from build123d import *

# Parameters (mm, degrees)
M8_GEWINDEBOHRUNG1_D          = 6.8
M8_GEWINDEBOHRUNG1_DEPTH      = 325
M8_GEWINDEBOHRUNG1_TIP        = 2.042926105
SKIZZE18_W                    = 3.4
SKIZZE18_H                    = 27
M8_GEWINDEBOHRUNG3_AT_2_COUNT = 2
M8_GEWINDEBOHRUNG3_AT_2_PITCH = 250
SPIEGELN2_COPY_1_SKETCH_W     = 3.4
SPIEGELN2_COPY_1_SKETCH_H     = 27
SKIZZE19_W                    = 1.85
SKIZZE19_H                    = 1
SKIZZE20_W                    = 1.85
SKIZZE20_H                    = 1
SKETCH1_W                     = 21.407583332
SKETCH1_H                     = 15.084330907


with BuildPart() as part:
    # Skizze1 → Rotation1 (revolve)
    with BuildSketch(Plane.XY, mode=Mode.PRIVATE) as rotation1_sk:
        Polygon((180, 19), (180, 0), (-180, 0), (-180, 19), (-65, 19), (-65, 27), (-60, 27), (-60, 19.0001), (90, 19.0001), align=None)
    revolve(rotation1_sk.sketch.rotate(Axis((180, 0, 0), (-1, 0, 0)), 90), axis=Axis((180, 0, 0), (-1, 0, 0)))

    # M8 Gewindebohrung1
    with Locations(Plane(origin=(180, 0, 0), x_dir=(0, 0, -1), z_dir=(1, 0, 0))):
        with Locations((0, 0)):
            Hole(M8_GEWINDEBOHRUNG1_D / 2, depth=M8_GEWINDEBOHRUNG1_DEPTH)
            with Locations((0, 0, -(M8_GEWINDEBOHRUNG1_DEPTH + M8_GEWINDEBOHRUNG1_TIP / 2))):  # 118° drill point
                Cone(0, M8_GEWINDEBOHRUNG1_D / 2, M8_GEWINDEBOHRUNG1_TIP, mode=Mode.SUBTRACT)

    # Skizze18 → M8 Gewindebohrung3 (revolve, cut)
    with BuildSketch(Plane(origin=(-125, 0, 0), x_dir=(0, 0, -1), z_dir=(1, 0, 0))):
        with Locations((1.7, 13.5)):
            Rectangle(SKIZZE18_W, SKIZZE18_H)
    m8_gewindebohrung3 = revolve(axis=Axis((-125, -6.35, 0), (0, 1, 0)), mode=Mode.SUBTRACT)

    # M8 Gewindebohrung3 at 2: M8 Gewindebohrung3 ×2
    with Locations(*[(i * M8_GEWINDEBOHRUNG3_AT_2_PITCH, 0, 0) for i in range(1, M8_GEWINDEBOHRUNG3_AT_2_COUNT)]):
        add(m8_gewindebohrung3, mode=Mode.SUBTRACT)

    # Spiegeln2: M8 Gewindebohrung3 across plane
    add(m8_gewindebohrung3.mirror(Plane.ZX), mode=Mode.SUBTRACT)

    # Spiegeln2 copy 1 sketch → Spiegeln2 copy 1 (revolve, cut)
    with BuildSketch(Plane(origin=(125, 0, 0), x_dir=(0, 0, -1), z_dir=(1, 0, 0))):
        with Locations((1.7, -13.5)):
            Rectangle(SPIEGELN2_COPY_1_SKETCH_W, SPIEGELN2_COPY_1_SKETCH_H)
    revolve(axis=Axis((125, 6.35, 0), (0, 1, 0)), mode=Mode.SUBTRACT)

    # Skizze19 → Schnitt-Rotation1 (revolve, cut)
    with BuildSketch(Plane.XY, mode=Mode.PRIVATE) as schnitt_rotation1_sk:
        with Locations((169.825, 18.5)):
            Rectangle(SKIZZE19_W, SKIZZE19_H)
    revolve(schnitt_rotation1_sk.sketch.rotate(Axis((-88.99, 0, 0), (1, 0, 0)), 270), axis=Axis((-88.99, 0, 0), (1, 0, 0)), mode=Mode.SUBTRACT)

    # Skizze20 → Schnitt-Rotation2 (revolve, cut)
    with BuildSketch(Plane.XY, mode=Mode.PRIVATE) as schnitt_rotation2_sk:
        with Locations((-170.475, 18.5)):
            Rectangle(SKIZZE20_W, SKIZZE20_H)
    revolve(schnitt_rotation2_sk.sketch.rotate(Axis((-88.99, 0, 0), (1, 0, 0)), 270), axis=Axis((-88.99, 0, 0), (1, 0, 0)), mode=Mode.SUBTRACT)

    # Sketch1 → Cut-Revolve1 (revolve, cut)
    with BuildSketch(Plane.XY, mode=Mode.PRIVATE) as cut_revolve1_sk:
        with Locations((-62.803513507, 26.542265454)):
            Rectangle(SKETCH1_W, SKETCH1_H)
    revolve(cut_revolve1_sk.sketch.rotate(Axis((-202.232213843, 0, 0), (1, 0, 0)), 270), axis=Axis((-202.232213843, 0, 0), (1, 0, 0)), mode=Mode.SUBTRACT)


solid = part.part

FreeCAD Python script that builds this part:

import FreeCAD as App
import Part
import Sketcher


def add_polygon(sketch, points):
    """Adds a closed chain of lines whose ends are joined by coincident constraints."""
    first, n = sketch.GeometryCount, len(points)
    for a, b in zip(points, points[1:] + points[:1]):
        sketch.addGeometry(Part.LineSegment(App.Vector(*a, 0), App.Vector(*b, 0)), False)
    for i in range(n):
        sketch.addConstraint(Sketcher.Constraint("Coincident", first + i, 2, first + (i + 1) % n, 1))

doc = App.newDocument("Part")
body = doc.addObject("PartDesign::Body", "Body")

sketch1 = doc.addObject("Sketcher::SketchObject", "Sketch")
body.addObject(sketch1)
sketch1.AttachmentSupport = (doc.XY_Plane, [""])
sketch1.MapMode = "FlatFace"
add_polygon(sketch1, [(180, 0), (180, 19), (90, 19.0001), (-60, 19.0001), (-60, 27), (-65, 27), (-65, 19), (-180, 19), (-180, 0)])
sketch1.addConstraint([
    Sketcher.Constraint("Vertical", 0),
    Sketcher.Constraint("Horizontal", 2),
    Sketcher.Constraint("Vertical", 3),
    Sketcher.Constraint("Horizontal", 4),
    Sketcher.Constraint("Vertical", 5),
    Sketcher.Constraint("Horizontal", 6),
    Sketcher.Constraint("Vertical", 7),
    Sketcher.Constraint("Horizontal", 8),
    Sketcher.Constraint("Symmetric", 7, 2, 8, 2, -1, 1),
    Sketcher.Constraint("Horizontal", 0, 2, 5, 2),
    Sketcher.Constraint("DistanceX", 2, 2, 2, 1, 150.0),
    Sketcher.Constraint("DistanceX", 4, 2, 4, 1, 5.0),
    Sketcher.Constraint("DistanceX", 6, 2, 6, 1, 115.0),
    Sketcher.Constraint("DistanceX", 8, 1, 8, 2, 360.0),
    Sketcher.Constraint("DistanceY", 0, 1, 0, 2, 19.0),
    Sketcher.Constraint("DistanceY", 5, 2, 5, 1, 8.0),
    Sketcher.Constraint("DistanceY", 3, 1, 3, 2, 7.9999),
])
revolution = doc.addObject("PartDesign::Revolution", "Revolution")
body.addObject(revolution)
revolution.Profile = sketch1
revolution.ReferenceAxis = (sketch1, ["H_Axis"])
revolution.Angle = 360

sketch2 = doc.addObject("Sketcher::SketchObject", "Sketch001")
body.addObject(sketch2)
sketch2.AttachmentSupport = (doc.YZ_Plane, [""])
sketch2.MapMode = "FlatFace"
sketch2.AttachmentOffset = App.Placement(App.Vector(0, 0, 180), App.Rotation())
sketch2.addGeometry(Part.Circle(App.Vector(0, 0, 0), App.Vector(0, 0, 1), 3.4), False)
sketch2.addConstraint([
    Sketcher.Constraint("Coincident", 0, 3, -1, 1),
    Sketcher.Constraint("Diameter", 0, 6.8),
])
doc.recompute()
hole = doc.addObject("PartDesign::Hole", "Hole")
body.addObject(hole)
hole.Profile = sketch2
hole.ThreadType = "None"
hole.Diameter = 6.8
hole.DepthType = "Dimension"
hole.Depth = 325
hole.DrillPoint = "Angled"
hole.DrillPointAngle = 118

sketch3 = doc.addObject("Sketcher::SketchObject", "Sketch002")
body.addObject(sketch3)
sketch3.AttachmentSupport = (doc.YZ_Plane, [""])
sketch3.MapMode = "FlatFace"
sketch3.AttachmentOffset = App.Placement(App.Vector(0, 0, -125), App.Rotation())
add_polygon(sketch3, [(27, 0), (0, 0), (0, -3.4), (27, -3.4)])
sketch3.addConstraint([
    Sketcher.Constraint("Horizontal", 0),
    Sketcher.Constraint("Vertical", 1),
    Sketcher.Constraint("Horizontal", 2),
    Sketcher.Constraint("Vertical", 3),
    Sketcher.Constraint("Coincident", 0, 2, -1, 1),
    Sketcher.Constraint("DistanceX", 0, 2, 0, 1, 27.0),
    Sketcher.Constraint("DistanceY", 1, 2, 1, 1, 3.4),
])
groove = doc.addObject("PartDesign::Groove", "Groove")
body.addObject(groove)
groove.Profile = sketch3
groove.ReferenceAxis = (sketch3, ["H_Axis"])
groove.Angle = 360
doc.recompute()

linearpattern = doc.addObject("PartDesign::LinearPattern", "LinearPattern")
body.addObject(linearpattern)
linearpattern.Originals = [groove]
linearpattern.Direction = (doc.X_Axis, [""])
linearpattern.Mode = "offset"
linearpattern.Offset = 250
linearpattern.Occurrences = 2
body.Tip = linearpattern
doc.recompute()

mirrored = doc.addObject("PartDesign::Mirrored", "Mirrored")
body.addObject(mirrored)
mirrored.Originals = [groove]
mirrored.MirrorPlane = (doc.XZ_Plane, [""])
body.Tip = mirrored

sketch4 = doc.addObject("Sketcher::SketchObject", "Sketch003")
body.addObject(sketch4)
sketch4.AttachmentSupport = (doc.YZ_Plane, [""])
sketch4.MapMode = "FlatFace"
sketch4.AttachmentOffset = App.Placement(App.Vector(0, 0, 125), App.Rotation())
add_polygon(sketch4, [(0, 0), (-27, 0), (-27, -3.4), (0, -3.4)])
sketch4.addConstraint([
    Sketcher.Constraint("Horizontal", 0),
    Sketcher.Constraint("Vertical", 1),
    Sketcher.Constraint("Horizontal", 2),
    Sketcher.Constraint("Vertical", 3),
    Sketcher.Constraint("Coincident", 3, 2, -1, 1),
    Sketcher.Constraint("DistanceX", 0, 2, 0, 1, 27.0),
    Sketcher.Constraint("DistanceY", 1, 2, 1, 1, 3.4),
])
groove2 = doc.addObject("PartDesign::Groove", "Groove001")
body.addObject(groove2)
groove2.Profile = sketch4
groove2.ReferenceAxis = (sketch4, ["H_Axis"])
groove2.Angle = 360

sketch5 = doc.addObject("Sketcher::SketchObject", "Sketch004")
body.addObject(sketch5)
sketch5.AttachmentSupport = (doc.XY_Plane, [""])
sketch5.MapMode = "FlatFace"
add_polygon(sketch5, [(168.9, 19), (168.9, 18), (170.75, 18), (170.75, 19)])
sketch5.addConstraint([
    Sketcher.Constraint("Vertical", 0),
    Sketcher.Constraint("Horizontal", 1),
    Sketcher.Constraint("Vertical", 2),
    Sketcher.Constraint("Horizontal", 3),
    Sketcher.Constraint("DistanceY", 0, 2, 0, 1, 1.0),
    Sketcher.Constraint("DistanceY", -1, 1, 0, 2, 18.0),
    Sketcher.Constraint("DistanceX", 1, 1, 1, 2, 1.85),
    Sketcher.Constraint("DistanceX", -1, 1, 0, 2, 168.9),
])
groove3 = doc.addObject("PartDesign::Groove", "Groove002")
body.addObject(groove3)
groove3.Profile = sketch5
groove3.ReferenceAxis = (sketch5, ["H_Axis"])
groove3.Angle = 360

sketch6 = doc.addObject("Sketcher::SketchObject", "Sketch005")
body.addObject(sketch6)
sketch6.AttachmentSupport = (doc.XY_Plane, [""])
sketch6.MapMode = "FlatFace"
add_polygon(sketch6, [(-171.4, 19), (-171.4, 18), (-169.55, 18), (-169.55, 19)])
sketch6.addConstraint([
    Sketcher.Constraint("Vertical", 0),
    Sketcher.Constraint("Horizontal", 1),
    Sketcher.Constraint("Vertical", 2),
    Sketcher.Constraint("Horizontal", 3),
    Sketcher.Constraint("DistanceY", 0, 2, 0, 1, 1.0),
    Sketcher.Constraint("DistanceY", -1, 1, 0, 2, 18.0),
    Sketcher.Constraint("DistanceX", 1, 1, 1, 2, 1.85),
    Sketcher.Constraint("DistanceX", 0, 2, -1, 1, 171.4),
])
groove4 = doc.addObject("PartDesign::Groove", "Groove003")
body.addObject(groove4)
groove4.Profile = sketch6
groove4.ReferenceAxis = (sketch6, ["H_Axis"])
groove4.Angle = 360

sketch7 = doc.addObject("Sketcher::SketchObject", "Sketch006")
body.addObject(sketch7)
sketch7.AttachmentSupport = (doc.XY_Plane, [""])
sketch7.MapMode = "FlatFace"
add_polygon(sketch7, [(-73.507305, 34.084431), (-73.507305, 19.0001), (-52.099722, 19.0001), (-52.099722, 34.084431)])
sketch7.addConstraint([
    Sketcher.Constraint("Vertical", 0),
    Sketcher.Constraint("Horizontal", 1),
    Sketcher.Constraint("Vertical", 2),
    Sketcher.Constraint("Horizontal", 3),
    Sketcher.Constraint("DistanceY", 0, 2, 0, 1, 15.084331),
    Sketcher.Constraint("DistanceY", -1, 1, 0, 2, 19.0001),
    Sketcher.Constraint("DistanceX", 1, 1, 1, 2, 21.407583),
    Sketcher.Constraint("DistanceX", 1, 2, -1, 1, 52.099722),
])
groove5 = doc.addObject("PartDesign::Groove", "Groove004")
body.addObject(groove5)
groove5.Profile = sketch7
groove5.ReferenceAxis = (sketch7, ["H_Axis"])
groove5.Angle = 360

doc.recompute()
